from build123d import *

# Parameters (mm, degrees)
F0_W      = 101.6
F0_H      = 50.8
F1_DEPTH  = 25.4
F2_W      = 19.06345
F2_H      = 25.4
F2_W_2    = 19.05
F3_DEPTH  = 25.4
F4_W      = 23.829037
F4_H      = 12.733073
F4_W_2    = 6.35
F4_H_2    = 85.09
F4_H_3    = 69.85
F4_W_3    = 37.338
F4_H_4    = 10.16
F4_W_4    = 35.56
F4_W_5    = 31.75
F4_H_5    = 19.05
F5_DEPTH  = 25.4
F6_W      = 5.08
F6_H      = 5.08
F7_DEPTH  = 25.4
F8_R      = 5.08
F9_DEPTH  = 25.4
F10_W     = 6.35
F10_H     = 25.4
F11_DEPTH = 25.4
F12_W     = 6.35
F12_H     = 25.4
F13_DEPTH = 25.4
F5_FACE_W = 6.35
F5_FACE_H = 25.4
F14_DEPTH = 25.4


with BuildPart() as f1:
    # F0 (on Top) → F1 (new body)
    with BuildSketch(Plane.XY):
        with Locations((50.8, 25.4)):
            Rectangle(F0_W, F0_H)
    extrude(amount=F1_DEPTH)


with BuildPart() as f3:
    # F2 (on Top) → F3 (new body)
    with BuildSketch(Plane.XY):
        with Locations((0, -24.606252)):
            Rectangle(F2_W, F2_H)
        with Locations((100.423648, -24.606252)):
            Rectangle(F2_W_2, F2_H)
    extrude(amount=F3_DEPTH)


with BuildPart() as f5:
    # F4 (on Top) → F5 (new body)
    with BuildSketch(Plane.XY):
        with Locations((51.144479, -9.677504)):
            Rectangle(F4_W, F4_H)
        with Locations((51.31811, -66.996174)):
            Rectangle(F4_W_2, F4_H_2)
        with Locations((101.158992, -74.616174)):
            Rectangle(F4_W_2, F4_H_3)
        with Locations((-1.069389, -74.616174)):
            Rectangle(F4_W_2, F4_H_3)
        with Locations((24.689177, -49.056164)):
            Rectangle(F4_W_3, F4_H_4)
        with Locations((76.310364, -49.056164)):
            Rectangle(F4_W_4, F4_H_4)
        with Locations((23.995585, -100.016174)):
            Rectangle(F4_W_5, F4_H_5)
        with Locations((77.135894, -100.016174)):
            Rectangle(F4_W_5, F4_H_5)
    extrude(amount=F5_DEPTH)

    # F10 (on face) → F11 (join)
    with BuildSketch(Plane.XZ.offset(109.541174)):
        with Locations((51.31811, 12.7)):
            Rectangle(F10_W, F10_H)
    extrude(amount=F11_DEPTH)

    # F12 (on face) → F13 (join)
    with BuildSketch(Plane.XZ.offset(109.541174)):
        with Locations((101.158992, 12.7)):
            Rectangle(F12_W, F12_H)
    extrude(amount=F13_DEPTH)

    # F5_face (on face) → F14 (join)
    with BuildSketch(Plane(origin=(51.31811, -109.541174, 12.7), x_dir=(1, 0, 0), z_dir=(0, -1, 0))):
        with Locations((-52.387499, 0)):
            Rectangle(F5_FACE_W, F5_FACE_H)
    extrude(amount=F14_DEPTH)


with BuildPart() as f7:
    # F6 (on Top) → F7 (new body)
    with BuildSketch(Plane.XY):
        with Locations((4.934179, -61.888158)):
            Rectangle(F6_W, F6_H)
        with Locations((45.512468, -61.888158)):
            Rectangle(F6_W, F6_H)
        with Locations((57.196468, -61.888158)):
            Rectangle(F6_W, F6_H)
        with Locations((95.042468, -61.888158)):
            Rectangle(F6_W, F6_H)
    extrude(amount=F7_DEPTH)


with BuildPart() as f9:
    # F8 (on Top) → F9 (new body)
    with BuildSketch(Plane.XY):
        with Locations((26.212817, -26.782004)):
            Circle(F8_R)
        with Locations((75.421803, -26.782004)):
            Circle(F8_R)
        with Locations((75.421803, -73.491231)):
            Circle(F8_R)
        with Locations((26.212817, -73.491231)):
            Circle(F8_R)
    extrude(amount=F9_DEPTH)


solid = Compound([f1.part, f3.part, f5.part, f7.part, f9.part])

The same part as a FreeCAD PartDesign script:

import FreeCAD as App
import Part
import Sketcher
Q = App.Units.Quantity


def add_polygon(sketch, points):
    """Adds a closed chain of lines whose ends are joined by coincident constraints."""
    first, n = sketch.GeometryCount, len(points)
    for a, b in zip(points, points[1:] + points[:1]):
        sketch.addGeometry(Part.LineSegment(App.Vector(*a, 0), App.Vector(*b, 0)), False)
    for i in range(n):
        sketch.addConstraint(Sketcher.Constraint("Coincident", first + i, 2, first + (i + 1) % n, 1))

doc = App.newDocument("Part")
body = doc.addObject("PartDesign::Body", "Body")

# Sketch on XY plane
sketch1 = body.newObject("Sketcher::SketchObject", "Sketch")
sketch1.AttachmentSupport = (doc.getObject("XY_Plane"), [""])
sketch1.MapMode = "FlatFace"
add_polygon(sketch1, [(0, 50.8), (0, 0), (101.6, 0), (101.6, 50.8)])  # lines 0-3
sketch1.addConstraint(Sketcher.Constraint("Vertical", 0))
sketch1.addConstraint(Sketcher.Constraint("Horizontal", 1))
sketch1.addConstraint(Sketcher.Constraint("Vertical", 2))
sketch1.addConstraint(Sketcher.Constraint("Horizontal", 3))
sketch1.addConstraint(Sketcher.Constraint("Coincident", 0, 2, -1, 1))
sketch1.addConstraint(Sketcher.Constraint("DistanceX", 1, 1, 1, 2, Q("4 in")))
sketch1.addConstraint(Sketcher.Constraint("DistanceY", 0, 2, 0, 1, Q("2 in")))
pad1 = body.newObject("PartDesign::Pad", "Pad")
pad1.Profile = sketch1
pad1.Length = Q("1 in")
body2 = doc.addObject("PartDesign::Body", "Body001")
body2.AllowCompound = True

# Sketch on XY plane
sketch2 = body2.newObject("Sketcher::SketchObject", "Sketch001")
sketch2.AttachmentSupport = (doc.getObject("XY_Plane001"), [""])
sketch2.MapMode = "FlatFace"
add_polygon(sketch2, [(-9.531725, -11.906252), (-9.531725, -37.306252), (9.531725, -37.306252), (9.531725, -11.906252)])  # lines 0-3
add_polygon(sketch2, [(90.898648, -11.906252), (90.898648, -37.306252), (109.948648, -37.306252), (109.948648, -11.906252)])  # lines 4-7
sketch2.addConstraint(Sketcher.Constraint("Vertical", 0))
sketch2.addConstraint(Sketcher.Constraint("Horizontal", 1))
sketch2.addConstraint(Sketcher.Constraint("Vertical", 2))
sketch2.addConstraint(Sketcher.Constraint("Horizontal", 3))
sketch2.addConstraint(Sketcher.Constraint("Vertical", 4))
sketch2.addConstraint(Sketcher.Constraint("Horizontal", 5))
sketch2.addConstraint(Sketcher.Constraint("Vertical", 6))
sketch2.addConstraint(Sketcher.Constraint("Horizontal", 7))
sketch2.addConstraint(Sketcher.Constraint("Horizontal", 1, 2, 4, 2))
sketch2.addConstraint(Sketcher.Constraint("Horizontal", 3, 2, 6, 2))
sketch2.addConstraint(Sketcher.Constraint("DistanceY", 0, 2, 0, 1, Q("1 in")))
sketch2.addConstraint(Sketcher.Constraint("DistanceX", 5, 1, 5, 2, Q("0.75 in")))
sketch2.addConstraint(Sketcher.Constraint("DistanceY", 0, 2, -1, 1, Q("1.4687501 in")))
sketch2.addConstraint(Sketcher.Constraint("DistanceX", 1, 1, 1, 2, Q("19.06345 mm")))
sketch2.addConstraint(Sketcher.Constraint("DistanceX", -1, 1, 5, 2, Q("109.948648 mm")))
sketch2.addConstraint(Sketcher.Constraint("DistanceX", 0, 2, -1, 1, Q("9.531725 mm")))
pad2 = body2.newObject("PartDesign::Pad", "Pad001")
pad2.Profile = sketch2
pad2.Length = Q("1 in")
body3 = doc.addObject("PartDesign::Body", "Body002")
body3.AllowCompound = True

# Sketch on XY plane
sketch3 = body3.newObject("Sketcher::SketchObject", "Sketch002")
sketch3.AttachmentSupport = (doc.getObject("XY_Plane002"), [""])
sketch3.MapMode = "FlatFace"
add_polygon(sketch3, [(39.22996, -3.310967), (39.22996, -16.044041), (63.058997, -16.044041), (63.058997, -3.310967)])  # lines 0-3
add_polygon(sketch3, [(48.14311, -24.451174), (48.14311, -109.541174), (54.49311, -109.541174), (54.49311, -24.451174)])  # lines 4-7
add_polygon(sketch3, [(97.983992, -39.691174), (97.983992, -109.541174), (104.333992, -109.541174), (104.333992, -39.691174)])  # lines 8-11
add_polygon(sketch3, [(-4.244389, -39.691174), (-4.244389, -109.541174), (2.105611, -109.541174), (2.105611, -39.691174)])  # lines 12-15
add_polygon(sketch3, [(6.020177, -43.976164), (6.020177, -54.136164), (43.358177, -54.136164), (43.358177, -43.976164)])  # lines 16-19
add_polygon(sketch3, [(58.530364, -43.976164), (58.530364, -54.136164), (94.090364, -54.136164), (94.090364, -43.976164)])  # lines 20-23
add_polygon(sketch3, [(8.120585, -90.491174), (8.120585, -109.541174), (39.870585, -109.541174), (39.870585, -90.491174)])  # lines 24-27
add_polygon(sketch3, [(61.260894, -90.491174), (61.260894, -109.541174), (93.010894, -109.541174), (93.010894, -90.491174)])  # lines 28-31
sketch3.addConstraint(Sketcher.Constraint("Vertical", 0))
sketch3.addConstraint(Sketcher.Constraint("Horizontal", 1))
sketch3.addConstraint(Sketcher.Constraint("Vertical", 2))
sketch3.addConstraint(Sketcher.Constraint("Horizontal", 3))
sketch3.addConstraint(Sketcher.Constraint("Vertical", 4))
sketch3.addConstraint(Sketcher.Constraint("Horizontal", 5))
sketch3.addConstraint(Sketcher.Constraint("Vertical", 6))
sketch3.addConstraint(Sketcher.Constraint("Horizontal", 7))
sketch3.addConstraint(Sketcher.Constraint("Vertical", 8))
sketch3.addConstraint(Sketcher.Constraint("Horizontal", 9))
sketch3.addConstraint(Sketcher.Constraint("Vertical", 10))
sketch3.addConstraint(Sketcher.Constraint("Horizontal", 11))
sketch3.addConstraint(Sketcher.Constraint("Vertical", 12))
sketch3.addConstraint(Sketcher.Constraint("Horizontal", 13))
sketch3.addConstraint(Sketcher.Constraint("Vertical", 14))
sketch3.addConstraint(Sketcher.Constraint("Horizontal", 15))
sketch3.addConstraint(Sketcher.Constraint("Vertical", 16))
sketch3.addConstraint(Sketcher.Constraint("Horizontal", 17))
sketch3.addConstraint(Sketcher.Constraint("Vertical", 18))
sketch3.addConstraint(Sketcher.Constraint("Horizontal", 19))
sketch3.addConstraint(Sketcher.Constraint("Vertical", 20))
sketch3.addConstraint(Sketcher.Constraint("Horizontal", 21))
sketch3.addConstraint(Sketcher.Constraint("Vertical", 22))
sketch3.addConstraint(Sketcher.Constraint("Horizontal", 23))
sketch3.addConstraint(Sketcher.Constraint("Vertical", 24))
sketch3.addConstraint(Sketcher.Constraint("Horizontal", 25))
sketch3.addConstraint(Sketcher.Constraint("Vertical", 26))
sketch3.addConstraint(Sketcher.Constraint("Horizontal", 27))
sketch3.addConstraint(Sketcher.Constraint("Vertical", 28))
sketch3.addConstraint(Sketcher.Constraint("Horizontal", 29))
sketch3.addConstraint(Sketcher.Constraint("Vertical", 30))
sketch3.addConstraint(Sketcher.Constraint("Horizontal", 31))
sketch3.addConstraint(Sketcher.Constraint("Horizontal", 5, 2, 8, 2))
sketch3.addConstraint(Sketcher.Constraint("Horizontal", 9, 2, 12, 2))
sketch3.addConstraint(Sketcher.Constraint("Horizontal", 11, 2, 14, 2))
sketch3.addConstraint(Sketcher.Constraint("Horizontal", 17, 2, 20, 2))
sketch3.addConstraint(Sketcher.Constraint("Horizontal", 19, 2, 22, 2))
sketch3.addConstraint(Sketcher.Constraint("Horizontal", 13, 2, 24, 2))
sketch3.addConstraint(Sketcher.Constraint("Horizontal", 25, 2, 28, 2))
sketch3.addConstraint(Sketcher.Constraint("Horizontal", 27, 2, 30, 2))
sketch3.addConstraint(Sketcher.Constraint("Equal", 7, 9))
sketch3.addConstraint(Sketcher.Constraint("Equal", 11, 13))
sketch3.addConstraint(Sketcher.Constraint("Equal", 27, 29))
sketch3.addConstraint(Sketcher.Constraint("DistanceX", 21, 1, 21, 2, Q("1.4 in")))
sketch3.addConstraint(Sketcher.Constraint("DistanceY", 16, 2, 16, 1, Q("0.4 in")))
sketch3.addConstraint(Sketcher.Constraint("DistanceX", 5, 1, 5, 2, Q("0.25 in")))
sketch3.addConstraint(Sketcher.Constraint("DistanceX", 17, 1, 17, 2, Q("1.47 in")))
sketch3.addConstraint(Sketcher.Constraint("DistanceX", 25, 1, 25, 2, Q("1.25 in")))
sketch3.addConstraint(Sketcher.Constraint("DistanceY", 4, 2, 4, 1, Q("3.35 in")))
sketch3.addConstraint(Sketcher.Constraint("DistanceY", 8, 2, 8, 1, Q("2.75 in")))
sketch3.addConstraint(Sketcher.Constraint("DistanceY", 24, 2, 24, 1, Q("0.75 in")))
sketch3.addConstraint(Sketcher.Constraint("DistanceX", 12, 2, 4, 2, Q("2.0625 in")))
sketch3.addConstraint(Sketcher.Constraint("DistanceX", 29, 2, 8, 2, Q("4.973098 mm")))
sketch3.addConstraint(Sketcher.Constraint("DistanceX", 1, 1, 1, 2, Q("23.829037 mm")))
sketch3.addConstraint(Sketcher.Constraint("DistanceY", 0, 2, 0, 1, Q("12.733073 mm")))
sketch3.addConstraint(Sketcher.Constraint("DistanceX", -1, 1, 0, 2, Q("39.22996 mm")))
sketch3.addConstraint(Sketcher.Constraint("DistanceY", 0, 2, -1, 1, Q("16.044041 mm")))
sketch3.addConstraint(Sketcher.Constraint("DistanceX", -1, 1, 4, 2, Q("48.14311 mm")))
sketch3.addConstraint(Sketcher.Constraint("DistanceX", -1, 1, 8, 2, Q("97.983992 mm")))
sketch3.addConstraint(Sketcher.Constraint("DistanceY", 16, 2, 14, 2, Q("14.44499 mm")))
sketch3.addConstraint(Sketcher.Constraint("DistanceX", 17, 2, 1, 2, Q("19.70082 mm")))
sketch3.addConstraint(Sketcher.Constraint("DistanceX", 21, 2, 11, 2, Q("3.893628 mm")))
sketch3.addConstraint(Sketcher.Constraint("DistanceX", 26, 2, 17, 2, Q("3.487592 mm")))
sketch3.addConstraint(Sketcher.Constraint("DistanceY", 4, 2, -1, 1, Q("109.541174 mm")))
pad3 = body3.newObject("PartDesign::Pad", "Pad002")
pad3.Profile = sketch3
pad3.Length = Q("1 in")

# Sketch on XZ plane
sketch4 = body3.newObject("Sketcher::SketchObject", "Sketch003")
sketch4.AttachmentSupport = (doc.getObject("XZ_Plane002"), [""])
sketch4.MapMode = "FlatFace"
sketch4.AttachmentOffset = App.Placement(App.Vector(0, 0, 109.541174), App.Rotation())
add_polygon(sketch4, [(48.14311, 25.4), (48.14311, 0), (54.49311, 0), (54.49311, 25.4)])  # lines 0-3
sketch4.addConstraint(Sketcher.Constraint("Vertical", 0))
sketch4.addConstraint(Sketcher.Constraint("Horizontal", 1))
sketch4.addConstraint(Sketcher.Constraint("Vertical", 2))
sketch4.addConstraint(Sketcher.Constraint("Horizontal", 3))
sketch4.addConstraint(Sketcher.Constraint("PointOnObject", 0, 2, -1))
sketch4.addConstraint(Sketcher.Constraint("DistanceY", 0, 2, 0, 1, Q("1 in")))
sketch4.addConstraint(Sketcher.Constraint("DistanceX", 1, 1, 1, 2, Q("0.25 in")))
sketch4.addConstraint(Sketcher.Constraint("DistanceX", -1, 1, 0, 2, Q("48.14311 mm")))
pad4 = body3.newObject("PartDesign::Pad", "Pad003")
pad4.Profile = sketch4
pad4.Length = Q("1 in")

# Sketch on XZ plane
sketch5 = body3.newObject("Sketcher::SketchObject", "Sketch004")
sketch5.AttachmentSupport = (doc.getObject("XZ_Plane002"), [""])
sketch5.MapMode = "FlatFace"
sketch5.AttachmentOffset = App.Placement(App.Vector(0, 0, 109.541174), App.Rotation())
add_polygon(sketch5, [(97.983992, 25.4), (97.983992, 0), (104.333992, 0), (104.333992, 25.4)])  # lines 0-3
sketch5.addConstraint(Sketcher.Constraint("Vertical", 0))
sketch5.addConstraint(Sketcher.Constraint("Horizontal", 1))
sketch5.addConstraint(Sketcher.Constraint("Vertical", 2))
sketch5.addConstraint(Sketcher.Constraint("Horizontal", 3))
sketch5.addConstraint(Sketcher.Constraint("PointOnObject", 0, 2, -1))
sketch5.addConstraint(Sketcher.Constraint("DistanceY", 0, 2, 0, 1, Q("1 in")))
sketch5.addConstraint(Sketcher.Constraint("DistanceX", 1, 1, 1, 2, Q("0.25 in")))
sketch5.addConstraint(Sketcher.Constraint("DistanceX", -1, 1, 0, 2, Q("97.983992 mm")))
pad5 = body3.newObject("PartDesign::Pad", "Pad004")
pad5.Profile = sketch5
pad5.Length = Q("1 in")

# Sketch on XZ plane
sketch6 = body3.newObject("Sketcher::SketchObject", "Sketch005")
sketch6.AttachmentSupport = (doc.getObject("XZ_Plane002"), [""])
sketch6.MapMode = "FlatFace"
sketch6.AttachmentOffset = App.Placement(App.Vector(0, 0, 109.541174), App.Rotation())
add_polygon(sketch6, [(-4.244389, 25.4), (-4.244389, 0), (2.105611, 0), (2.105611, 25.4)])  # lines 0-3
sketch6.addConstraint(Sketcher.Constraint("Vertical", 0))
sketch6.addConstraint(Sketcher.Constraint("Horizontal", 1))
sketch6.addConstraint(Sketcher.Constraint("Vertical", 2))
sketch6.addConstraint(Sketcher.Constraint("Horizontal", 3))
sketch6.addConstraint(Sketcher.Constraint("PointOnObject", 0, 2, -1))
sketch6.addConstraint(Sketcher.Constraint("DistanceY", 0, 2, 0, 1, Q("1 in")))
sketch6.addConstraint(Sketcher.Constraint("DistanceX", 1, 1, 1, 2, Q("0.25 in")))
sketch6.addConstraint(Sketcher.Constraint("DistanceX", 0, 2, -1, 1, Q("4.244389 mm")))
pad6 = body3.newObject("PartDesign::Pad", "Pad005")
pad6.Profile = sketch6
pad6.Length = Q("1 in")
body4 = doc.addObject("PartDesign::Body", "Body003")
body4.AllowCompound = True

# Sketch on XY plane
sketch7 = body4.newObject("Sketcher::SketchObject", "Sketch006")
sketch7.AttachmentSupport = (doc.getObject("XY_Plane003"), [""])
sketch7.MapMode = "FlatFace"
add_polygon(sketch7, [(2.394179, -59.348158), (2.394179, -64.428158), (7.474179, -64.428158), (7.474179, -59.348158)])  # lines 0-3
add_polygon(sketch7, [(42.972468, -59.348158), (42.972468, -64.428158), (48.052468, -64.428158), (48.052468, -59.348158)])  # lines 4-7
add_polygon(sketch7, [(54.656468, -59.348158), (54.656468, -64.428158), (59.736468, -64.428158), (59.736468, -59.348158)])  # lines 8-11
add_polygon(sketch7, [(92.502468, -59.348158), (92.502468, -64.428158), (97.582468, -64.428158), (97.582468, -59.348158)])  # lines 12-15
sketch7.addConstraint(Sketcher.Constraint("Vertical", 0))
sketch7.addConstraint(Sketcher.Constraint("Horizontal", 1))
sketch7.addConstraint(Sketcher.Constraint("Vertical", 2))
sketch7.addConstraint(Sketcher.Constraint("Horizontal", 3))
sketch7.addConstraint(Sketcher.Constraint("Vertical", 4))
sketch7.addConstraint(Sketcher.Constraint("Horizontal", 5))
sketch7.addConstraint(Sketcher.Constraint("Vertical", 6))
sketch7.addConstraint(Sketcher.Constraint("Horizontal", 7))
sketch7.addConstraint(Sketcher.Constraint("Vertical", 8))
sketch7.addConstraint(Sketcher.Constraint("Horizontal", 9))
sketch7.addConstraint(Sketcher.Constraint("Vertical", 10))
sketch7.addConstraint(Sketcher.Constraint("Horizontal", 11))
sketch7.addConstraint(Sketcher.Constraint("Vertical", 12))
sketch7.addConstraint(Sketcher.Constraint("Horizontal", 13))
sketch7.addConstraint(Sketcher.Constraint("Vertical", 14))
sketch7.addConstraint(Sketcher.Constraint("Horizontal", 15))
sketch7.addConstraint(Sketcher.Constraint("Horizontal", 1, 2, 4, 2))
sketch7.addConstraint(Sketcher.Constraint("Horizontal", 3, 2, 6, 2))
sketch7.addConstraint(Sketcher.Constraint("Horizontal", 5, 2, 8, 2))
sketch7.addConstraint(Sketcher.Constraint("Horizontal", 7, 2, 10, 2))
sketch7.addConstraint(Sketcher.Constraint("Horizontal", 9, 2, 12, 2))
sketch7.addConstraint(Sketcher.Constraint("Horizontal", 11, 2, 14, 2))
sketch7.addConstraint(Sketcher.Constraint("Equal", 3, 5))
sketch7.addConstraint(Sketcher.Constraint("Equal", 7, 9))
sketch7.addConstraint(Sketcher.Constraint("Equal", 11, 13))
sketch7.addConstraint(Sketcher.Constraint("Equal", 15, 0))
sketch7.addConstraint(Sketcher.Constraint("DistanceX", 1, 1, 1, 2, Q("0.2 in")))
sketch7.addConstraint(Sketcher.Constraint("DistanceX", 5, 2, 8, 2, Q("0.26 in")))
sketch7.addConstraint(Sketcher.Constraint("DistanceX", 9, 2, 12, 2, Q("1.29 in")))
sketch7.addConstraint(Sketcher.Constraint("DistanceX", -1, 1, 0, 2, Q("2.394179 mm")))
sketch7.addConstraint(Sketcher.Constraint("DistanceX", -1, 1, 9, 2, Q("59.736468 mm")))
sketch7.addConstraint(Sketcher.Constraint("DistanceY", 0, 2, -1, 1, Q("64.428158 mm")))
pad7 = body4.newObject("PartDesign::Pad", "Pad006")
pad7.Profile = sketch7
pad7.Length = Q("1 in")
body5 = doc.addObject("PartDesign::Body", "Body004")
body5.AllowCompound = True

# Sketch on XY plane
sketch8 = body5.newObject("Sketcher::SketchObject", "Sketch007")
sketch8.AttachmentSupport = (doc.getObject("XY_Plane004"), [""])
sketch8.MapMode = "FlatFace"
sketch8.addGeometry(Part.Circle(App.Vector(26.212817, -26.782004, 0), App.Vector(0, 0, 1), 5.08), False)
sketch8.addGeometry(Part.Circle(App.Vector(75.421803, -26.782004, 0), App.Vector(0, 0, 1), 5.08), False)
sketch8.addGeometry(Part.Circle(App.Vector(75.421803, -73.491231, 0), App.Vector(0, 0, 1), 5.08), False)
sketch8.addGeometry(Part.Circle(App.Vector(26.212817, -73.491231, 0), App.Vector(0, 0, 1), 5.08), False)
sketch8.addConstraint(Sketcher.Constraint("Equal", 0, 1))
sketch8.addConstraint(Sketcher.Constraint("Equal", 1, 2))
sketch8.addConstraint(Sketcher.Constraint("Equal", 2, 3))
sketch8.addConstraint(Sketcher.Constraint("Horizontal", 0, 3, 1, 3))
sketch8.addConstraint(Sketcher.Constraint("Horizontal", 2, 3, 3, 3))
sketch8.addConstraint(Sketcher.Constraint("Vertical", 1, 3, 2, 3))
sketch8.addConstraint(Sketcher.Constraint("Vertical", 0, 3, 3, 3))
sketch8.addConstraint(Sketcher.Constraint("Diameter", 0, Q("0.4 in")))
sketch8.addConstraint(Sketcher.Constraint("DistanceY", 2, 3, -1, 1, Q("73.491231 mm")))
sketch8.addConstraint(Sketcher.Constraint("DistanceX", -1, 1, 0, 3, Q("26.212817 mm")))
sketch8.addConstraint(Sketcher.Constraint("DistanceY", 0, 3, -1, 1, Q("26.782004 mm")))
sketch8.addConstraint(Sketcher.Constraint("DistanceX", -1, 1, 1, 3, Q("75.421803 mm")))
pad8 = body5.newObject("PartDesign::Pad", "Pad007")
pad8.Profile = sketch8
pad8.Length = Q("1 in")

doc.recompute()
